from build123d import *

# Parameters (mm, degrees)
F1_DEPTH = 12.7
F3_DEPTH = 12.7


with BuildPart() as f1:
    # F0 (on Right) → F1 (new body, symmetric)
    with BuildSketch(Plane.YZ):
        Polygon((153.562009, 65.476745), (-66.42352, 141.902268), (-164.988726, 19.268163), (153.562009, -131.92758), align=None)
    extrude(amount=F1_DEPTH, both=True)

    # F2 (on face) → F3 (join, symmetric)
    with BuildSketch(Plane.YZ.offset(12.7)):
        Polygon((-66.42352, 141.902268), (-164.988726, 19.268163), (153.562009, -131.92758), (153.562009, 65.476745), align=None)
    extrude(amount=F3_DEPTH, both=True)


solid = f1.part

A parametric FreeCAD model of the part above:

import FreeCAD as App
import Part
import Sketcher
Q = App.Units.Quantity

doc = App.newDocument("Part")
params = doc.addObject("Spreadsheet::Sheet", "Params")
for row, (alias, value) in enumerate([
    ("pad1_length", "1 in"),
    ("pad2_length", "1 in"),
], start=1):
    params.set(f"A{row}", alias)
    params.set(f"B{row}", "=" + value)
    params.setAlias(f"B{row}", alias)

body = doc.addObject("PartDesign::Body", "Body")

sketch1 = body.newObject("Sketcher::SketchObject", "Sketch")
sketch1.AttachmentSupport = (doc.getObject("YZ_Plane"), [""])
sketch1.MapMode = "FlatFace"
sketch1.addGeometry(Part.LineSegment(App.Vector(153.562009, 65.476745, 0), App.Vector(-66.42352, 141.902268, 0)), False)
sketch1.addGeometry(Part.LineSegment(App.Vector(-66.42352, 141.902268, 0), App.Vector(-164.988726, 19.268163, 0)), False)
sketch1.addGeometry(Part.LineSegment(App.Vector(-164.988726, 19.268163, 0), App.Vector(153.562009, -131.92758, 0)), False)
sketch1.addGeometry(Part.LineSegment(App.Vector(153.562009, -131.92758, 0), App.Vector(153.562009, 65.476745, 0)), False)
sketch1.addConstraint(Sketcher.Constraint("Coincident", 0, 2, 1, 1))
sketch1.addConstraint(Sketcher.Constraint("Coincident", 1, 2, 2, 1))
sketch1.addConstraint(Sketcher.Constraint("Coincident", 2, 2, 3, 1))
sketch1.addConstraint(Sketcher.Constraint("Coincident", 3, 2, 0, 1))
sketch1.addConstraint(Sketcher.Constraint("Vertical", 3))
sketch1.addConstraint(Sketcher.Constraint("Distance", 1, Q("157.33475 mm")))
sketch1.addConstraint(Sketcher.Constraint("DistanceY", 3, 1, 3, 2, Q("197.404325 mm")))
sketch1.addConstraint(Sketcher.Constraint("DistanceX", 0, 2, -1, 1, Q("66.42352 mm")))
sketch1.addConstraint(Sketcher.Constraint("DistanceY", -1, 1, 0, 2, Q("141.902268 mm")))
sketch1.addConstraint(Sketcher.Constraint("DistanceX", -1, 1, 2, 2, Q("153.562009 mm")))
sketch1.addConstraint(Sketcher.Constraint("DistanceY", 2, 2, -1, 1, Q("131.92758 mm")))
sketch1.addConstraint(Sketcher.Constraint("DistanceY", 1, 2, 3, 2, Q("46.208582 mm")))
pad1 = body.newObject("PartDesign::Pad", "Pad")
pad1.Profile = sketch1
pad1.setExpression("Length", "Params.pad1_length")
pad1.Midplane = True

sketch2 = body.newObject("Sketcher::SketchObject", "Sketch001")
sketch2.AttachmentSupport = (doc.getObject("YZ_Plane"), [""])
sketch2.MapMode = "FlatFace"
sketch2.AttachmentOffset = App.Placement(App.Vector(0, 0, 0.5 * 25.4), App.Rotation())
sketch2.addGeometry(Part.LineSegment(App.Vector(-66.42352, 141.902268, 0), App.Vector(-164.988726, 19.268163, 0)), False)
sketch2.addGeometry(Part.LineSegment(App.Vector(-164.988726, 19.268163, 0), App.Vector(153.562009, -131.92758, 0)), False)
sketch2.addGeometry(Part.LineSegment(App.Vector(153.562009, -131.92758, 0), App.Vector(153.562009, 65.476745, 0)), False)
sketch2.addGeometry(Part.LineSegment(App.Vector(153.562009, 65.476745, 0), App.Vector(-66.42352, 141.902268, 0)), False)
sketch2.addConstraint(Sketcher.Constraint("Coincident", 0, 2, 1, 1))
sketch2.addConstraint(Sketcher.Constraint("Coincident", 1, 2, 2, 1))
sketch2.addConstraint(Sketcher.Constraint("Coincident", 2, 2, 3, 1))
sketch2.addConstraint(Sketcher.Constraint("Coincident", 3, 2, 0, 1))
sketch2.addConstraint(Sketcher.Constraint("Vertical", 2))
sketch2.addConstraint(Sketcher.Constraint("Distance", 0, Q("157.33475 mm")))
sketch2.addConstraint(Sketcher.Constraint("DistanceY", 2, 1, 2, 2, Q("197.404325 mm")))
sketch2.addConstraint(Sketcher.Constraint("DistanceX", -1, 1, 1, 2, Q("153.562009 mm")))
sketch2.addConstraint(Sketcher.Constraint("DistanceY", 1, 2, -1, 1, Q("131.92758 mm")))
sketch2.addConstraint(Sketcher.Constraint("DistanceX", 3, 2, -1, 1, Q("66.42352 mm")))
sketch2.addConstraint(Sketcher.Constraint("DistanceY", -1, 1, 3, 2, Q("141.902268 mm")))
sketch2.addConstraint(Sketcher.Constraint("DistanceY", 0, 2, 2, 2, Q("46.208582 mm")))
pad2 = body.newObject("PartDesign::Pad", "Pad001")
pad2.Profile = sketch2
pad2.setExpression("Length", "Params.pad2_length")
pad2.Midplane = True

doc.recompute()
